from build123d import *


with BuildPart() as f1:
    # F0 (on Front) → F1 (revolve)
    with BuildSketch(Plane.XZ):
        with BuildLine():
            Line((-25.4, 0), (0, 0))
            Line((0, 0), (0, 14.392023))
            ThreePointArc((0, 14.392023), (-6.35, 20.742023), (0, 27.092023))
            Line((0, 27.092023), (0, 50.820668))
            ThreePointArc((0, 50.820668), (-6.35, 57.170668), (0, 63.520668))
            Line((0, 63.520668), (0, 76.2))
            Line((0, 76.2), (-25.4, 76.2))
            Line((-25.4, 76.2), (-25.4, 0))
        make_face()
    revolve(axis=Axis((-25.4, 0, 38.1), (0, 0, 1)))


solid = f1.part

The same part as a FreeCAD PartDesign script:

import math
import FreeCAD as App
import Part
import Sketcher
from FreeCAD import Vector
Q = App.Units.Quantity

doc = App.newDocument("Part")
params = doc.addObject("Spreadsheet::Sheet", "Params")
for row, (alias, value) in enumerate([
    ("sketch1_width", "1 in"),
    ("sketch1_height", "3 in"),
    ("sketch1_radius", "0.25 in"),
    ("revolution_angle", "360 deg"),
], start=1):
    params.set(f"A{row}", alias)
    params.set(f"B{row}", "=" + value)
    params.setAlias(f"B{row}", alias)

body = doc.addObject("PartDesign::Body", "Body")

# Sketch on XZ plane
sketch1 = body.newObject("Sketcher::SketchObject", "Sketch")
sketch1.AttachmentSupport = (doc.getObject("XZ_Plane"), [""])
sketch1.MapMode = "FlatFace"
sketch1.addGeometry([
    Part.LineSegment(Vector(-25, 0, 0), Vector(0, 0, 0)),  # 0
    Part.LineSegment(Vector(0, 0, 0), Vector(0, 14, 0)),  # 1
    Part.ArcOfCircle(Part.Circle(Vector(0, 21, 0), Vector(0, 0, 1), 6), math.radians(90), math.radians(270)),  # 2
    Part.LineSegment(Vector(0, 27, 0), Vector(0, 51, 0)),  # 3
    Part.ArcOfCircle(Part.Circle(Vector(0, 57, 0), Vector(0, 0, 1), 6), math.radians(90), math.radians(270)),  # 4
    Part.LineSegment(Vector(0, 64, 0), Vector(0, 76, 0)),  # 5
    Part.LineSegment(Vector(0, 76, 0), Vector(-25, 76, 0)),  # 6
    Part.LineSegment(Vector(-25, 76, 0), Vector(-25, 0, 0)),  # 7
], False)
sketch1.addGeometry(Part.LineSegment(Vector(-25, 0, 0), Vector(-25, 76, 0)), True)  # axis
sketch1.addConstraint([
    Sketcher.Constraint("Coincident", 0, 2, 1, 1),
    Sketcher.Constraint("Coincident", 1, 2, 2, 2),
    Sketcher.Constraint("Coincident", 2, 1, 3, 1),
    Sketcher.Constraint("Coincident", 3, 2, 4, 2),
    Sketcher.Constraint("Coincident", 4, 1, 5, 1),
    Sketcher.Constraint("Coincident", 5, 2, 6, 1),
    Sketcher.Constraint("Coincident", 6, 2, 7, 1),
    Sketcher.Constraint("Coincident", 7, 2, 0, 1),
    Sketcher.Constraint("Horizontal", 0),
    Sketcher.Constraint("Vertical", 1),
    Sketcher.Constraint("Vertical", 3),
    Sketcher.Constraint("Vertical", 5),
    Sketcher.Constraint("Horizontal", 6),
    Sketcher.Constraint("Vertical", 7),
    Sketcher.Constraint("Vertical", 8),
    Sketcher.Constraint("Coincident", 0, 2, -1, 1),
    Sketcher.Constraint("Coincident", 8, 1, 7, 2),
    Sketcher.Constraint("Equal", 2, 4),
    Sketcher.Constraint("PointOnObject", 2, 3, -2),
    Sketcher.Constraint("PointOnObject", 4, 3, -2),
    Sketcher.Constraint("PointOnObject", 2, 1, -2),
    Sketcher.Constraint("PointOnObject", 4, 1, -2),
    Sketcher.Constraint("Horizontal", 5, 2, 8, 2),
    Sketcher.Constraint("DistanceX", 0, 1, 0, 2, Q("1 in")),
    Sketcher.Constraint("DistanceY", 7, 2, 7, 1, Q("3 in")),
    Sketcher.Constraint("Radius", 2, Q("0.25 in")),
    Sketcher.Constraint("DistanceY", 1, 1, 1, 2, Q("14.392023 mm")),
    Sketcher.Constraint("DistanceY", 3, 1, 3, 2, Q("23.728645 mm")),
])
sketch1.setExpression("Constraints[23]", "Params.sketch1_width")
sketch1.setExpression("Constraints[24]", "Params.sketch1_height")
sketch1.setExpression("Constraints[25]", "Params.sketch1_radius")
revolution = body.newObject("PartDesign::Revolution", "Revolution")
revolution.Profile = sketch1
revolution.ReferenceAxis = (sketch1, ["Axis0"])
revolution.setExpression("Angle", "Params.revolution_angle")

doc.recompute()
